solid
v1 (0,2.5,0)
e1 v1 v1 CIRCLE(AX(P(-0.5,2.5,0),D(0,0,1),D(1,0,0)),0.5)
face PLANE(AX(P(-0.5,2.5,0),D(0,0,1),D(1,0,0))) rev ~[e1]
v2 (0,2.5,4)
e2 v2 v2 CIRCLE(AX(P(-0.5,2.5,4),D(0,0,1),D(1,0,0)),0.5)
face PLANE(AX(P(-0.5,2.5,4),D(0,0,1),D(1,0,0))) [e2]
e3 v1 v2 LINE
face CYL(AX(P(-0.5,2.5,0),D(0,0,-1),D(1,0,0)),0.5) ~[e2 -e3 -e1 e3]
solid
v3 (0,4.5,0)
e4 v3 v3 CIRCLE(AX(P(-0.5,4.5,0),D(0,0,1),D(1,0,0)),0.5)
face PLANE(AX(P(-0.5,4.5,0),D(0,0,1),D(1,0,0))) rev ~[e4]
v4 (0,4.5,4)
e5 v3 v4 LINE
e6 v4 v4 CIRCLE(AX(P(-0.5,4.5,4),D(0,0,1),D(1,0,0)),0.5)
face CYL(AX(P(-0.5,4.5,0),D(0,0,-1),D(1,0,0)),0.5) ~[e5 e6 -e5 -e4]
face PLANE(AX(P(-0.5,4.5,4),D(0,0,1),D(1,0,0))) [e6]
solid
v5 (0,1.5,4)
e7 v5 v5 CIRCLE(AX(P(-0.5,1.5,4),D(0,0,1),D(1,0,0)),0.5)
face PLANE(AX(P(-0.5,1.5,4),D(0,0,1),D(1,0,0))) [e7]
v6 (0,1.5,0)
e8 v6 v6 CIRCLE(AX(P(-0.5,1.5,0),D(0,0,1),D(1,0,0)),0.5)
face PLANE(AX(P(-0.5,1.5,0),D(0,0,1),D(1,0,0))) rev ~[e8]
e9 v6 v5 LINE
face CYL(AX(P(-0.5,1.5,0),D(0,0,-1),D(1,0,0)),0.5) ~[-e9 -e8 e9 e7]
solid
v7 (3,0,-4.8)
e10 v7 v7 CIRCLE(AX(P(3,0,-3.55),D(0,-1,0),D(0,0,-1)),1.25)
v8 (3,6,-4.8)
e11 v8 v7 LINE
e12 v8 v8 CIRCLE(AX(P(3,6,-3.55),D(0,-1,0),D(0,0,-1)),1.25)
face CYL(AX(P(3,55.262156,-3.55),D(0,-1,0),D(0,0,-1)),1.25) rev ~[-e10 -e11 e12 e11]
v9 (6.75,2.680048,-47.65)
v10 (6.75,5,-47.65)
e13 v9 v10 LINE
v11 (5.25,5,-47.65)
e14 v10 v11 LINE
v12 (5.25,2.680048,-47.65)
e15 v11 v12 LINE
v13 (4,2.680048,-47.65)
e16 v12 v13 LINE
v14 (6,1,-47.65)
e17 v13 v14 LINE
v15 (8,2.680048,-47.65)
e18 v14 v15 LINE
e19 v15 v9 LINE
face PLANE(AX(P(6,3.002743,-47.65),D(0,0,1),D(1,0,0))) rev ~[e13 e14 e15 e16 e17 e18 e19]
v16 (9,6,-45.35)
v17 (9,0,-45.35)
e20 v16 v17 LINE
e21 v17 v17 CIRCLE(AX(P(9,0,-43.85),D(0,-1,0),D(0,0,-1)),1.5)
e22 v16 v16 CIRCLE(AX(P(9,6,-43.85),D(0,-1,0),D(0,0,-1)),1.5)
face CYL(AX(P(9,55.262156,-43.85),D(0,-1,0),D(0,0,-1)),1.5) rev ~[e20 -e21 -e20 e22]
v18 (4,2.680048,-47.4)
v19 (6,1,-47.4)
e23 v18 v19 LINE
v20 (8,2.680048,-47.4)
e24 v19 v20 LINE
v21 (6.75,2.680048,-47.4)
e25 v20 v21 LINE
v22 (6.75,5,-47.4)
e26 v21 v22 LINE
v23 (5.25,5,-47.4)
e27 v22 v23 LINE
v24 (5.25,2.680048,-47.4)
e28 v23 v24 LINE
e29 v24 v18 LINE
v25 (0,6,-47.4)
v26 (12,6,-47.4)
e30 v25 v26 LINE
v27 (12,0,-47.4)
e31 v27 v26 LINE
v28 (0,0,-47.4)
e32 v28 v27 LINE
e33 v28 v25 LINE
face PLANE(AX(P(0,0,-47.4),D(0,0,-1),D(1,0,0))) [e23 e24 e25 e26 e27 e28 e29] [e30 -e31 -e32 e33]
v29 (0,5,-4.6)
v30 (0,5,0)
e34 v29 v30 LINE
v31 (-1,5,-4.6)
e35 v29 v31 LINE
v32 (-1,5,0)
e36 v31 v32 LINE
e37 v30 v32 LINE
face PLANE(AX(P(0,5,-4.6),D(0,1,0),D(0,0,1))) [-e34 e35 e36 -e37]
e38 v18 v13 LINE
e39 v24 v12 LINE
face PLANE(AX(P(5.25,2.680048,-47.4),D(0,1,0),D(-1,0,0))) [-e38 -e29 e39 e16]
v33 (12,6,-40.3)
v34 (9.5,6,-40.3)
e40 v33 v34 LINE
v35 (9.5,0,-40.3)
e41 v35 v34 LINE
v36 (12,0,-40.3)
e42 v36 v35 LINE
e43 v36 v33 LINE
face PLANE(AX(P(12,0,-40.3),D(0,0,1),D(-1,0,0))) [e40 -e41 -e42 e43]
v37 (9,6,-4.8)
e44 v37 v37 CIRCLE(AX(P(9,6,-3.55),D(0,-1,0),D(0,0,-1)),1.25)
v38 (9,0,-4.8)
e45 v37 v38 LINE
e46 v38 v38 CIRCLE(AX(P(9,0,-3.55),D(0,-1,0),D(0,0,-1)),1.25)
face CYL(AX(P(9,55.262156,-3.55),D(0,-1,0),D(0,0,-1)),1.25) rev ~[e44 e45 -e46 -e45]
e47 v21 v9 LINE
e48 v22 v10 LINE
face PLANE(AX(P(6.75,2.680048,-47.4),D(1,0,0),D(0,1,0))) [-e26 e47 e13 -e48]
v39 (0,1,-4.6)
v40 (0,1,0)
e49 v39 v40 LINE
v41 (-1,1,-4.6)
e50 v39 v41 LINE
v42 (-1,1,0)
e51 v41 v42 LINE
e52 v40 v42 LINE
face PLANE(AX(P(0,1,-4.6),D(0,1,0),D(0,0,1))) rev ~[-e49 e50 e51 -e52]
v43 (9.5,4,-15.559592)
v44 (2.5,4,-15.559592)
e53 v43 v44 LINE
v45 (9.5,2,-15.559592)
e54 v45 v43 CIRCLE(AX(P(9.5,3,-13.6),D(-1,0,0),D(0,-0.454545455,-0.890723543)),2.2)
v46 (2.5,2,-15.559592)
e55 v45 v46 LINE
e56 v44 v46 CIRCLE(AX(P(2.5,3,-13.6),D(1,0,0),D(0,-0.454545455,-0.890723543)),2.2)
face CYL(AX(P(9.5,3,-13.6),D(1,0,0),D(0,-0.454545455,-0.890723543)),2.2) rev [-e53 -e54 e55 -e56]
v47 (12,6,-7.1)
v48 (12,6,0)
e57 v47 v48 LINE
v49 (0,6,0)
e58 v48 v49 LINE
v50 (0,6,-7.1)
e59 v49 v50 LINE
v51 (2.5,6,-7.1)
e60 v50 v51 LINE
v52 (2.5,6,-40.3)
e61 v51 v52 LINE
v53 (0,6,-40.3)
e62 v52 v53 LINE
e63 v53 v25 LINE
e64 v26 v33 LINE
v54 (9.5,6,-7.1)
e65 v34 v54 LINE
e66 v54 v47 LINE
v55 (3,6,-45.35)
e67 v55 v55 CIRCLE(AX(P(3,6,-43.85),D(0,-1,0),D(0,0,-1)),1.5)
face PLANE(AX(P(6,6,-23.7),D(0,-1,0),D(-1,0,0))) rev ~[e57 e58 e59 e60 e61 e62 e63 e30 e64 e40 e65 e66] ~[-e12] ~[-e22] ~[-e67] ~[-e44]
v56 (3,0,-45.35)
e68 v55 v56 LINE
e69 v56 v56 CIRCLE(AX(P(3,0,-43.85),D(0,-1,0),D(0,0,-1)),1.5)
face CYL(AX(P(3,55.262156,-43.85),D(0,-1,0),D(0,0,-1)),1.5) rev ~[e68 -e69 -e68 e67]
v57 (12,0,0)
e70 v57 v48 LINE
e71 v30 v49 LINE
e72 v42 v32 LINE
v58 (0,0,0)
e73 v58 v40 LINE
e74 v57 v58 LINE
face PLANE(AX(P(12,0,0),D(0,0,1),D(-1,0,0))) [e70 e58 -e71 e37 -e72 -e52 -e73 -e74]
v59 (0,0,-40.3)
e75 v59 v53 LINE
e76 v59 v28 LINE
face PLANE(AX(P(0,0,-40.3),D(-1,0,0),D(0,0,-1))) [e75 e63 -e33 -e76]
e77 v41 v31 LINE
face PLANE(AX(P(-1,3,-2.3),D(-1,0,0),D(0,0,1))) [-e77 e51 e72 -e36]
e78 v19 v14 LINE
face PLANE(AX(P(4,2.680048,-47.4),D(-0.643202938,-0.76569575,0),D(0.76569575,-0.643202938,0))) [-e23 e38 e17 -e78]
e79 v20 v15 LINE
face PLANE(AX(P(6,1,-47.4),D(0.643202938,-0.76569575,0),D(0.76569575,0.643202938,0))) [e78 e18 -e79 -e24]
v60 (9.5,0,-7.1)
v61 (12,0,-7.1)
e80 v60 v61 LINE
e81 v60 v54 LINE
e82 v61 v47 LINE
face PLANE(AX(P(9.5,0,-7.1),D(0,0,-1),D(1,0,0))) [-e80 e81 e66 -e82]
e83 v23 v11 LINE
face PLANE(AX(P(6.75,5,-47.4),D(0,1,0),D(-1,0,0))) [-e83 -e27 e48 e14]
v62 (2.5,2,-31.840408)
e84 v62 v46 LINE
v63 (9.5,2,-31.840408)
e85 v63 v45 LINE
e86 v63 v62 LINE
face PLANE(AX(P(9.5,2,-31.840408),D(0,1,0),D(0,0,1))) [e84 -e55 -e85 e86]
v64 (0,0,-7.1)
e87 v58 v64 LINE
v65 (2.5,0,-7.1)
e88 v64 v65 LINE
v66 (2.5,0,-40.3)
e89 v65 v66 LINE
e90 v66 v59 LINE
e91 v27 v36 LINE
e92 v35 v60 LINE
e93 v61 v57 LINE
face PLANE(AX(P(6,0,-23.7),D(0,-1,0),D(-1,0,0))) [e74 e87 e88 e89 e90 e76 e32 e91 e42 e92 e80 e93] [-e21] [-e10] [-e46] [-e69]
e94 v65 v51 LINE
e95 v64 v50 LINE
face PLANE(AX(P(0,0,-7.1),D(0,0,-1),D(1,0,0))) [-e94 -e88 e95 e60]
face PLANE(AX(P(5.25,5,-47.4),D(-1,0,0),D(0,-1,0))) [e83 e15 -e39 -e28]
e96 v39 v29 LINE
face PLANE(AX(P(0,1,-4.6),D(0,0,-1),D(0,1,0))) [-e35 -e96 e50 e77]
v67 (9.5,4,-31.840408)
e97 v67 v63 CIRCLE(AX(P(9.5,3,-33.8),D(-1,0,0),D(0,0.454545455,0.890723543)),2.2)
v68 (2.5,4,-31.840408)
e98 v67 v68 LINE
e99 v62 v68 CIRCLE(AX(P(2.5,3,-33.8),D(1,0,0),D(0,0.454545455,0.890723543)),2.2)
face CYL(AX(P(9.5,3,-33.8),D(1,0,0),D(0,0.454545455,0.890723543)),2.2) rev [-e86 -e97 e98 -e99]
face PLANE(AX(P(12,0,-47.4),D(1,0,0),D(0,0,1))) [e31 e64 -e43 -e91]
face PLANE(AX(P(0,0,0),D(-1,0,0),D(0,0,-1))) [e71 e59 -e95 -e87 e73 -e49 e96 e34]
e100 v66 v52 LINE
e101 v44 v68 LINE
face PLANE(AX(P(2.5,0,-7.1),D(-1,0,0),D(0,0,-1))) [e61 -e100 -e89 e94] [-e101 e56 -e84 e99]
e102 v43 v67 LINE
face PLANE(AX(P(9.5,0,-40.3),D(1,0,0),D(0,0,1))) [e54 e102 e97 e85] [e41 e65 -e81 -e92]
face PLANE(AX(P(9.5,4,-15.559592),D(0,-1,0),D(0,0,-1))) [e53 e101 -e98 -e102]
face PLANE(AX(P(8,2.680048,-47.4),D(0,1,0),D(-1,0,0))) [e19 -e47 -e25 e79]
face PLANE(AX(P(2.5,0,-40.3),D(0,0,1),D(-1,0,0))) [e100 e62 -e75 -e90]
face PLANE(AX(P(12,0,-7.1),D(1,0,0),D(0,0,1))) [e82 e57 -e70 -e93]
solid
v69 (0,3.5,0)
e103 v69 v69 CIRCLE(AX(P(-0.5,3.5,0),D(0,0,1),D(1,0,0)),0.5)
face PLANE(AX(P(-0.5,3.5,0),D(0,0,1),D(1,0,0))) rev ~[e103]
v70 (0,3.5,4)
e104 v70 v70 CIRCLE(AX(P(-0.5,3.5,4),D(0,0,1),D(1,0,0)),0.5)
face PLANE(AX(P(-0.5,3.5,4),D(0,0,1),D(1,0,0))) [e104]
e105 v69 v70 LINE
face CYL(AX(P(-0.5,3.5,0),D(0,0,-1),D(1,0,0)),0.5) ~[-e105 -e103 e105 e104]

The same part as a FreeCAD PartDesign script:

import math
import FreeCAD as App
import Part
import Sketcher
Q = App.Units.Quantity

doc = App.newDocument("Part")
body = doc.addObject("PartDesign::Body", "Body")

sketch1 = body.newObject("Sketcher::SketchObject", "Sketch")
sketch1.AttachmentSupport = (doc.getObject("XZ_Plane"), [""])
sketch1.MapMode = "FlatFace"
sketch1.addGeometry(Part.LineSegment(App.Vector(2.5, -40.3, 0), App.Vector(2.5, -7.1, 0)), False)
sketch1.addGeometry(Part.LineSegment(App.Vector(2.5, -7.1, 0), App.Vector(0, -7.1, 0)), False)
sketch1.addGeometry(Part.LineSegment(App.Vector(0, -7.1, 0), App.Vector(0, 0, 0)), False)
sketch1.addGeometry(Part.LineSegment(App.Vector(0, 0, 0), App.Vector(12, 0, 0)), False)
sketch1.addGeometry(Part.LineSegment(App.Vector(12, 0, 0), App.Vector(12, -7.1, 0)), False)
sketch1.addGeometry(Part.LineSegment(App.Vector(12, -7.1, 0), App.Vector(9.5, -7.1, 0)), False)
sketch1.addGeometry(Part.LineSegment(App.Vector(9.5, -7.1, 0), App.Vector(9.5, -40.3, 0)), False)
sketch1.addGeometry(Part.LineSegment(App.Vector(9.5, -40.3, 0), App.Vector(12, -40.3, 0)), False)
sketch1.addGeometry(Part.LineSegment(App.Vector(12, -40.3, 0), App.Vector(12, -47.4, 0)), False)
sketch1.addGeometry(Part.LineSegment(App.Vector(12, -47.4, 0), App.Vector(0, -47.4, 0)), False)
sketch1.addGeometry(Part.LineSegment(App.Vector(0, -47.4, 0), App.Vector(0, -40.3, 0)), False)
sketch1.addGeometry(Part.LineSegment(App.Vector(0, -40.3, 0), App.Vector(2.5, -40.3, 0)), False)
sketch1.addConstraint(Sketcher.Constraint("Coincident", 0, 2, 1, 1))
sketch1.addConstraint(Sketcher.Constraint("Coincident", 1, 2, 2, 1))
sketch1.addConstraint(Sketcher.Constraint("Coincident", 2, 2, 3, 1))
sketch1.addConstraint(Sketcher.Constraint("Coincident", 3, 2, 4, 1))
sketch1.addConstraint(Sketcher.Constraint("Coincident", 4, 2, 5, 1))
sketch1.addConstraint(Sketcher.Constraint("Coincident", 5, 2, 6, 1))
sketch1.addConstraint(Sketcher.Constraint("Coincident", 6, 2, 7, 1))
sketch1.addConstraint(Sketcher.Constraint("Coincident", 7, 2, 8, 1))
sketch1.addConstraint(Sketcher.Constraint("Coincident", 8, 2, 9, 1))
sketch1.addConstraint(Sketcher.Constraint("Coincident", 9, 2, 10, 1))
sketch1.addConstraint(Sketcher.Constraint("Coincident", 10, 2, 11, 1))
sketch1.addConstraint(Sketcher.Constraint("Coincident", 11, 2, 0, 1))
sketch1.addConstraint(Sketcher.Constraint("Vertical", 0))
sketch1.addConstraint(Sketcher.Constraint("Horizontal", 1))
sketch1.addConstraint(Sketcher.Constraint("Vertical", 2))
sketch1.addConstraint(Sketcher.Constraint("Horizontal", 3))
sketch1.addConstraint(Sketcher.Constraint("Vertical", 4))
sketch1.addConstraint(Sketcher.Constraint("Horizontal", 5))
sketch1.addConstraint(Sketcher.Constraint("Vertical", 6))
sketch1.addConstraint(Sketcher.Constraint("Horizontal", 7))
sketch1.addConstraint(Sketcher.Constraint("Vertical", 8))
sketch1.addConstraint(Sketcher.Constraint("Horizontal", 9))
sketch1.addConstraint(Sketcher.Constraint("Vertical", 10))
sketch1.addConstraint(Sketcher.Constraint("Horizontal", 11))
sketch1.addConstraint(Sketcher.Constraint("Coincident", 2, 2, -1, 1))
sketch1.addConstraint(Sketcher.Constraint("PointOnObject", 9, 2, -2))
sketch1.addConstraint(Sketcher.Constraint("Horizontal", 1, 2, 4, 2))
sketch1.addConstraint(Sketcher.Constraint("Horizontal", 7, 2, 10, 2))
sketch1.addConstraint(Sketcher.Constraint("Vertical", 4, 2, 7, 2))
sketch1.addConstraint(Sketcher.Constraint("Equal", 1, 5))
sketch1.addConstraint(Sketcher.Constraint("Equal", 4, 8))
sketch1.addConstraint(Sketcher.Constraint("DistanceX", 3, 1, 3, 2, Q("12 mm")))
sketch1.addConstraint(Sketcher.Constraint("DistanceX", 1, 2, 1, 1, Q("2.5 mm")))
sketch1.addConstraint(Sketcher.Constraint("DistanceY", 0, 1, 0, 2, Q("33.2 mm")))
sketch1.addConstraint(Sketcher.Constraint("DistanceY", 2, 1, 2, 2, Q("7.1 mm")))
pad1 = body.newObject("PartDesign::Pad", "Pad")
pad1.Profile = sketch1
pad1.Length = 6
pad1.Reversed = True

sketch2 = body.newObject("Sketcher::SketchObject", "Sketch001")
sketch2.AttachmentSupport = (doc.getObject("XZ_Plane"), [""])
sketch2.MapMode = "FlatFace"
sketch2.AttachmentOffset = App.Placement(App.Vector(0, 0, -6), App.Rotation())
sketch2.addGeometry(Part.Circle(App.Vector(3, -43.9, 0), App.Vector(0, 0, 1), 1.5), False)
sketch2.addGeometry(Part.Circle(App.Vector(9, -43.9, 0), App.Vector(0, 0, 1), 1.5), False)
sketch2.addConstraint(Sketcher.Constraint("Equal", 0, 1))
sketch2.addConstraint(Sketcher.Constraint("Horizontal", 0, 3, 1, 3))
sketch2.addConstraint(Sketcher.Constraint("Diameter", 0, Q("3 mm")))
sketch2.addConstraint(Sketcher.Constraint("DistanceX", -1, 1, 0, 3, Q("3 mm")))
sketch2.addConstraint(Sketcher.Constraint("DistanceX", -1, 1, 1, 3, Q("9 mm")))
sketch2.addConstraint(Sketcher.Constraint("DistanceY", 0, 3, -1, 1, Q("43.85 mm")))
doc.recompute()
hole = body.newObject("PartDesign::Hole", "Hole")
hole.Profile = sketch2
hole.ThreadType = "None"
hole.Diameter = 3
hole.DepthType = "ThroughAll"
hole.Reversed = True

sketch3 = body.newObject("Sketcher::SketchObject", "Sketch002")
sketch3.AttachmentSupport = (doc.getObject("XZ_Plane"), [""])
sketch3.MapMode = "FlatFace"
sketch3.AttachmentOffset = App.Placement(App.Vector(0, 0, -6), App.Rotation())
sketch3.addGeometry(Part.Circle(App.Vector(9, -3.5, 0), App.Vector(0, 0, 1), 1.2), False)
sketch3.addGeometry(Part.Circle(App.Vector(3, -3.5, 0), App.Vector(0, 0, 1), 1.2), False)
sketch3.addConstraint(Sketcher.Constraint("Equal", 0, 1))
sketch3.addConstraint(Sketcher.Constraint("Horizontal", 0, 3, 1, 3))
sketch3.addConstraint(Sketcher.Constraint("Diameter", 0, Q("2.5 mm")))
sketch3.addConstraint(Sketcher.Constraint("DistanceX", -1, 1, 0, 3, Q("9 mm")))
sketch3.addConstraint(Sketcher.Constraint("DistanceX", -1, 1, 1, 3, Q("3 mm")))
sketch3.addConstraint(Sketcher.Constraint("DistanceY", 0, 3, -1, 1, Q("3.55 mm")))
doc.recompute()
hole2 = body.newObject("PartDesign::Hole", "Hole001")
hole2.Profile = sketch3
hole2.ThreadType = "None"
hole2.Diameter = 2.5
hole2.DepthType = "ThroughAll"
hole2.Reversed = True

sketch4 = body.newObject("Sketcher::SketchObject", "Sketch003")
sketch4.AttachmentSupport = (doc.getObject("XY_Plane"), [""])
sketch4.MapMode = "FlatFace"
sketch4.AttachmentOffset = App.Placement(App.Vector(0, 0, -47.4), App.Rotation())
sketch4.addGeometry(Part.LineSegment(App.Vector(5.2, 5, 0), App.Vector(6.8, 5, 0)), False)
sketch4.addGeometry(Part.LineSegment(App.Vector(6.8, 5, 0), App.Vector(6.8, 2.7, 0)), False)
sketch4.addGeometry(Part.LineSegment(App.Vector(6.8, 2.7, 0), App.Vector(8, 2.7, 0)), False)
sketch4.addGeometry(Part.LineSegment(App.Vector(8, 2.7, 0), App.Vector(6, 1, 0)), False)
sketch4.addGeometry(Part.LineSegment(App.Vector(6, 1, 0), App.Vector(4, 2.7, 0)), False)
sketch4.addGeometry(Part.LineSegment(App.Vector(4, 2.7, 0), App.Vector(5.2, 2.7, 0)), False)
sketch4.addGeometry(Part.LineSegment(App.Vector(5.2, 2.7, 0), App.Vector(5.2, 5, 0)), False)
sketch4.addConstraint(Sketcher.Constraint("Coincident", 0, 2, 1, 1))
sketch4.addConstraint(Sketcher.Constraint("Coincident", 1, 2, 2, 1))
sketch4.addConstraint(Sketcher.Constraint("Coincident", 2, 2, 3, 1))
sketch4.addConstraint(Sketcher.Constraint("Coincident", 3, 2, 4, 1))
sketch4.addConstraint(Sketcher.Constraint("Coincident", 4, 2, 5, 1))
sketch4.addConstraint(Sketcher.Constraint("Coincident", 5, 2, 6, 1))
sketch4.addConstraint(Sketcher.Constraint("Coincident", 6, 2, 0, 1))
sketch4.addConstraint(Sketcher.Constraint("Horizontal", 0))
sketch4.addConstraint(Sketcher.Constraint("Vertical", 1))
sketch4.addConstraint(Sketcher.Constraint("Horizontal", 2))
sketch4.addConstraint(Sketcher.Constraint("Horizontal", 5))
sketch4.addConstraint(Sketcher.Constraint("Vertical", 6))
sketch4.addConstraint(Sketcher.Constraint("Horizontal", 2, 2, 4, 2))
sketch4.addConstraint(Sketcher.Constraint("Equal", 2, 5))
sketch4.addConstraint(Sketcher.Constraint("Equal", 3, 4))
sketch4.addConstraint(Sketcher.Constraint("DistanceX", 0, 1, 0, 2, Q("1.5 mm")))
sketch4.addConstraint(Sketcher.Constraint("DistanceY", -1, 1, 0, 2, Q("5 mm")))
sketch4.addConstraint(Sketcher.Constraint("DistanceX", -1, 1, 2, 2, Q("8 mm")))
sketch4.addConstraint(Sketcher.Constraint("DistanceX", -1, 1, 3, 2, Q("6 mm")))
sketch4.addConstraint(Sketcher.Constraint("DistanceY", -1, 1, 3, 2, Q("1 mm")))
sketch4.addConstraint(Sketcher.Constraint("DistanceY", 1, 2, 1, 1, Q("2.319952 mm")))
pad2 = body.newObject("PartDesign::Pad", "Pad001")
pad2.Profile = sketch4
pad2.Length = 0.25
pad2.Reversed = True

sketch5 = body.newObject("Sketcher::SketchObject", "Sketch004")
sketch5.AttachmentSupport = (doc.getObject("YZ_Plane"), [""])
sketch5.MapMode = "FlatFace"
sketch5.AttachmentOffset = App.Placement(App.Vector(0, 0, 9.5), App.Rotation())
sketch5.addGeometry(Part.LineSegment(App.Vector(4, -31.8, 0), App.Vector(4, -15.6, 0)), False)
sketch5.addGeometry(Part.ArcOfCircle(Part.Circle(App.Vector(3, -13.6, 0), App.Vector(0, 0, 1), 2.2), math.radians(-63), math.radians(243)), False)
sketch5.addGeometry(Part.LineSegment(App.Vector(2, -15.6, 0), App.Vector(2, -31.8, 0)), False)
sketch5.addGeometry(Part.ArcOfCircle(Part.Circle(App.Vector(3, -33.8, 0), App.Vector(0, 0, 1), 2.2), math.radians(117), math.radians(423)), False)
sketch5.addConstraint(Sketcher.Constraint("Coincident", 0, 2, 1, 1))
sketch5.addConstraint(Sketcher.Constraint("Coincident", 1, 2, 2, 1))
sketch5.addConstraint(Sketcher.Constraint("Coincident", 2, 2, 3, 1))
sketch5.addConstraint(Sketcher.Constraint("Coincident", 3, 2, 0, 1))
sketch5.addConstraint(Sketcher.Constraint("Vertical", 0))
sketch5.addConstraint(Sketcher.Constraint("Vertical", 2))
sketch5.addConstraint(Sketcher.Constraint("Equal", 1, 3))
sketch5.addConstraint(Sketcher.Constraint("Horizontal", 0, 2, 1, 2))
sketch5.addConstraint(Sketcher.Constraint("Horizontal", 2, 2, 3, 2))
sketch5.addConstraint(Sketcher.Constraint("Radius", 1, Q("2.2 mm")))
sketch5.addConstraint(Sketcher.Constraint("DistanceX", -1, 1, 1, 3, Q("3 mm")))
sketch5.addConstraint(Sketcher.Constraint("DistanceX", -1, 1, 0, 2, Q("4 mm")))
sketch5.addConstraint(Sketcher.Constraint("DistanceY", 1, 3, -1, 1, Q("13.6 mm")))
sketch5.addConstraint(Sketcher.Constraint("DistanceY", 3, 3, -1, 1, Q("33.8 mm")))
pocket1 = body.newObject("PartDesign::Pocket", "Pocket")
pocket1.Profile = sketch5
pocket1.Type = "UpToFirst"

sketch6 = body.newObject("Sketcher::SketchObject", "Sketch005")
sketch6.AttachmentSupport = (doc.getObject("YZ_Plane"), [""])
sketch6.MapMode = "FlatFace"
sketch6.addGeometry(Part.LineSegment(App.Vector(5, -4.6, 0), App.Vector(1, -4.6, 0)), False)
sketch6.addGeometry(Part.LineSegment(App.Vector(1, -4.6, 0), App.Vector(1, 0, 0)), False)
sketch6.addGeometry(Part.LineSegment(App.Vector(1, 0, 0), App.Vector(5, 0, 0)), False)
sketch6.addGeometry(Part.LineSegment(App.Vector(5, 0, 0), App.Vector(5, -4.6, 0)), False)
sketch6.addConstraint(Sketcher.Constraint("Coincident", 0, 2, 1, 1))
sketch6.addConstraint(Sketcher.Constraint("Coincident", 1, 2, 2, 1))
sketch6.addConstraint(Sketcher.Constraint("Coincident", 2, 2, 3, 1))
sketch6.addConstraint(Sketcher.Constraint("Coincident", 3, 2, 0, 1))
sketch6.addConstraint(Sketcher.Constraint("Horizontal", 0))
sketch6.addConstraint(Sketcher.Constraint("Vertical", 1))
sketch6.addConstraint(Sketcher.Constraint("Horizontal", 2))
sketch6.addConstraint(Sketcher.Constraint("Vertical", 3))
sketch6.addConstraint(Sketcher.Constraint("PointOnObject", 1, 2, -1))
sketch6.addConstraint(Sketcher.Constraint("DistanceX", 0, 2, 0, 1, Q("4 mm")))
sketch6.addConstraint(Sketcher.Constraint("DistanceY", 1, 1, 1, 2, Q("4.6 mm")))
sketch6.addConstraint(Sketcher.Constraint("DistanceX", -1, 1, 0, 2, Q("1 mm")))
pad3 = body.newObject("PartDesign::Pad", "Pad002")
pad3.Profile = sketch6
pad3.Length = 1
pad3.Reversed = True
body2 = doc.addObject("PartDesign::Body", "Body001")

sketch7 = body2.newObject("Sketcher::SketchObject", "Sketch006")
sketch7.AttachmentSupport = (doc.getObject("XY_Plane001"), [""])
sketch7.MapMode = "FlatFace"
sketch7.addGeometry(Part.Circle(App.Vector(-0.5, 4.5, 0), App.Vector(0, 0, 1), 0.5), False)
sketch7.addConstraint(Sketcher.Constraint("Diameter", 0, Q("1 mm")))
sketch7.addConstraint(Sketcher.Constraint("DistanceX", 0, 3, -1, 1, Q("0.5 mm")))
sketch7.addConstraint(Sketcher.Constraint("DistanceY", -1, 1, 0, 3, Q("4.5 mm")))
pad4 = body2.newObject("PartDesign::Pad", "Pad003")
pad4.Profile = sketch7
pad4.Length = 4
body3 = doc.addObject("PartDesign::Body", "Body002")

sketch8 = body3.newObject("Sketcher::SketchObject", "Sketch007")
sketch8.AttachmentSupport = (doc.getObject("XY_Plane002"), [""])
sketch8.MapMode = "FlatFace"
sketch8.addGeometry(Part.Circle(App.Vector(-0.5, 3.5, 0), App.Vector(0, 0, 1), 0.5), False)
sketch8.addConstraint(Sketcher.Constraint("Diameter", 0, Q("1 mm")))
sketch8.addConstraint(Sketcher.Constraint("DistanceX", 0, 3, -1, 1, Q("0.5 mm")))
sketch8.addConstraint(Sketcher.Constraint("DistanceY", -1, 1, 0, 3, Q("3.5 mm")))
pad5 = body3.newObject("PartDesign::Pad", "Pad004")
pad5.Profile = sketch8
pad5.Length = 4
body4 = doc.addObject("PartDesign::Body", "Body003")

sketch9 = body4.newObject("Sketcher::SketchObject", "Sketch008")
sketch9.AttachmentSupport = (doc.getObject("XY_Plane003"), [""])
sketch9.MapMode = "FlatFace"
sketch9.addGeometry(Part.Circle(App.Vector(-0.5, 2.5, 0), App.Vector(0, 0, 1), 0.5), False)
sketch9.addConstraint(Sketcher.Constraint("Diameter", 0, Q("1 mm")))
sketch9.addConstraint(Sketcher.Constraint("DistanceX", 0, 3, -1, 1, Q("0.5 mm")))
sketch9.addConstraint(Sketcher.Constraint("DistanceY", -1, 1, 0, 3, Q("2.5 mm")))
pad6 = body4.newObject("PartDesign::Pad", "Pad005")
pad6.Profile = sketch9
pad6.Length = 4
body5 = doc.addObject("PartDesign::Body", "Body004")

sketch10 = body5.newObject("Sketcher::SketchObject", "Sketch009")
sketch10.AttachmentSupport = (doc.getObject("XY_Plane004"), [""])
sketch10.MapMode = "FlatFace"
sketch10.addGeometry(Part.Circle(App.Vector(-0.5, 1.5, 0), App.Vector(0, 0, 1), 0.5), False)
sketch10.addConstraint(Sketcher.Constraint("Diameter", 0, Q("1 mm")))
sketch10.addConstraint(Sketcher.Constraint("DistanceX", 0, 3, -1, 1, Q("0.5 mm")))
sketch10.addConstraint(Sketcher.Constraint("DistanceY", -1, 1, 0, 3, Q("1.5 mm")))
pad7 = body5.newObject("PartDesign::Pad", "Pad006")
pad7.Profile = sketch10
pad7.Length = 4

doc.recompute()
